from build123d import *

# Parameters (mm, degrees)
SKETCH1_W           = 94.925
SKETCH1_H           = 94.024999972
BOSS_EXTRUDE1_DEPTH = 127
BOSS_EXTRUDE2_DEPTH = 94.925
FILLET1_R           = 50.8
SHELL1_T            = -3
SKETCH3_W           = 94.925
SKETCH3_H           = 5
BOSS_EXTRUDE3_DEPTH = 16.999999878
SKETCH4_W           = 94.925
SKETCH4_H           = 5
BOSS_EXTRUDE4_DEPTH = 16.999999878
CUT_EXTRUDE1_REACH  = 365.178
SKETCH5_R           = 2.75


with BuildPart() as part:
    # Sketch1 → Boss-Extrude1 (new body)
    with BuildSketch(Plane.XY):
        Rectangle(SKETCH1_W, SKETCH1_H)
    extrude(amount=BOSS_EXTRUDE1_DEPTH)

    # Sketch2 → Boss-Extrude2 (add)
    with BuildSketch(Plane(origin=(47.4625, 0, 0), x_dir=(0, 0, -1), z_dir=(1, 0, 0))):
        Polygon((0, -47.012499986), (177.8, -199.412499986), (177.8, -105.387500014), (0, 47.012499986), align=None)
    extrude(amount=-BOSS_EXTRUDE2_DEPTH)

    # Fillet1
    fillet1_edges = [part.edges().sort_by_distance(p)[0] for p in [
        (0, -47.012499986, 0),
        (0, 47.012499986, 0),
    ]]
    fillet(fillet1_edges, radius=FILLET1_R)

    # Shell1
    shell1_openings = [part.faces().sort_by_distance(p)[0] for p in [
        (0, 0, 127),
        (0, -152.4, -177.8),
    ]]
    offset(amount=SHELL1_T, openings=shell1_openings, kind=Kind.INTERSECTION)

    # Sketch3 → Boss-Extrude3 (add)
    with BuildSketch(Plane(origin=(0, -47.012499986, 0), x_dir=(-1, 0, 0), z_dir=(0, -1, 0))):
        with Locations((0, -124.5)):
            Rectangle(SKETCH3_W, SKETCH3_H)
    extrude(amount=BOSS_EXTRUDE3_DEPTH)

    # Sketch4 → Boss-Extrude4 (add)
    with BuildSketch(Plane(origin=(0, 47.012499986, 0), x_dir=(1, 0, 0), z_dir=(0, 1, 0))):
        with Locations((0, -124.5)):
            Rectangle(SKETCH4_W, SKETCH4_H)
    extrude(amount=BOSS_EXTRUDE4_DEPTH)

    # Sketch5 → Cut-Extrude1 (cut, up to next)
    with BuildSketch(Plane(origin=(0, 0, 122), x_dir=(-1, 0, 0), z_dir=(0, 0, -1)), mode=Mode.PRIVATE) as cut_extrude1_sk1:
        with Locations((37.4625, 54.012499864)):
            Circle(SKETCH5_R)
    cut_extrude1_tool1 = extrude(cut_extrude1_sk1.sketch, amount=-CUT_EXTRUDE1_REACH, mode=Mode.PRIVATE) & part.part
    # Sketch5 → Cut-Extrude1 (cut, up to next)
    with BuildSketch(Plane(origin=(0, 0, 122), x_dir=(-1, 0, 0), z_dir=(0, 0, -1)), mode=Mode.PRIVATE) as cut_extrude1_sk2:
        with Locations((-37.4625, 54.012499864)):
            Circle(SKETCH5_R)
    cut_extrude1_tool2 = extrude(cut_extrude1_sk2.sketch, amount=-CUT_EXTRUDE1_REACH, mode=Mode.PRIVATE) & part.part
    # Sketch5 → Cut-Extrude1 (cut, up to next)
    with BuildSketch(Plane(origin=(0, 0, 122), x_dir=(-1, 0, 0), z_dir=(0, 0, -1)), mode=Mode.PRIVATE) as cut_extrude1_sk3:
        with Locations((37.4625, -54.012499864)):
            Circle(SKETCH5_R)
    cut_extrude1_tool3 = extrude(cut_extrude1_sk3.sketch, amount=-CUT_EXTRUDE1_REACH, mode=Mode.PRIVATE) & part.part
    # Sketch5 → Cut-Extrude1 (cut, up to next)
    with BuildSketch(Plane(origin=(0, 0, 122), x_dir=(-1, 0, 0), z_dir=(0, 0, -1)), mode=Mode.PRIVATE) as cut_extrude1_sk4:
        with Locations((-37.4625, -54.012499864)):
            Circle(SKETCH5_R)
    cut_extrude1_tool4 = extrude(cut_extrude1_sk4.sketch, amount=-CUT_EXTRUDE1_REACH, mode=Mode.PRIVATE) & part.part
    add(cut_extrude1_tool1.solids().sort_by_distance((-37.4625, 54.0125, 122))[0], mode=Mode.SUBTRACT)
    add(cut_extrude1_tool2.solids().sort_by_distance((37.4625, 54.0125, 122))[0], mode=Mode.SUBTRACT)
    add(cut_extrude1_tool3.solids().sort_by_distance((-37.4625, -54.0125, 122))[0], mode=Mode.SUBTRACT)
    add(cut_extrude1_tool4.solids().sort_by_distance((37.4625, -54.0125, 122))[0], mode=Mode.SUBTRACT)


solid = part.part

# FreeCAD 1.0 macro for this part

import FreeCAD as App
import Part
import Sketcher

V = App.Vector


def edges_at(feature, points):
    """Names of the edges that pass closest to the given points."""
    edges = feature.Shape.Edges
    near = lambda p: min(range(len(edges)), key=lambda i: edges[i].distToShape(Part.Vertex(*p))[0])
    return sorted({f"Edge{near(p) + 1}" for p in points})


def faces_at(feature, points):
    """Names of the faces that lie closest to the given points."""
    faces = feature.Shape.Faces
    near = lambda p: min(range(len(faces)), key=lambda i: faces[i].distToShape(Part.Vertex(*p))[0])
    return sorted({f"Face{near(p) + 1}" for p in points})


def add_polygon(sketch, points):
    """Adds a closed chain of lines whose ends are joined by coincident constraints."""
    first, n = sketch.GeometryCount, len(points)
    for a, b in zip(points, points[1:] + points[:1]):
        sketch.addGeometry(Part.LineSegment(App.Vector(*a, 0), App.Vector(*b, 0)), False)
    for i in range(n):
        sketch.addConstraint(Sketcher.Constraint("Coincident", first + i, 2, first + (i + 1) % n, 1))

doc = App.newDocument("Part")
body = doc.addObject("PartDesign::Body", "Body")

sketch1 = body.newObject("Sketcher::SketchObject", "Sketch")
sketch1.AttachmentSupport = (doc.getObject("XY_Plane"), [""])
sketch1.MapMode = "FlatFace"
add_polygon(sketch1, [(-47.4625, 47.0125), (-47.4625, -47.0125), (47.4625, -47.0125), (47.4625, 47.0125)])
sketch1.addConstraint([
    Sketcher.Constraint("Vertical", 0),
    Sketcher.Constraint("Horizontal", 1),
    Sketcher.Constraint("Vertical", 2),
    Sketcher.Constraint("Horizontal", 3),
    Sketcher.Constraint("Symmetric", 0, 2, 2, 2, -1, 1),
    Sketcher.Constraint("DistanceX", 1, 1, 1, 2, 94.925),
    Sketcher.Constraint("DistanceY", 0, 2, 0, 1, 94.025),
])
pad1 = body.newObject("PartDesign::Pad", "Pad")
pad1.Profile = sketch1
pad1.Length = 127

sketch2 = body.newObject("Sketcher::SketchObject", "Sketch001")
sketch2.AttachmentSupport = (doc.getObject("YZ_Plane"), [""])
sketch2.MapMode = "FlatFace"
sketch2.AttachmentOffset = App.Placement(V(0, 0, 47.4625), App.Rotation())
add_polygon(sketch2, [(-47.0125, 0), (-199.4125, -177.8), (-105.3875, -177.8), (47.0125, 0)])
sketch2.addConstraint([
    Sketcher.Constraint("Horizontal", 1),
    Sketcher.Constraint("Horizontal", 3),
    Sketcher.Constraint("Symmetric", 2, 2, 3, 2, -1, 1),
    Sketcher.Constraint("Parallel", 0, 2),
    Sketcher.Constraint("DistanceY", 0, 2, -1, 1, 177.8),
    Sketcher.Constraint("DistanceX", 1, 2, 2, 2, 152.4),
    Sketcher.Constraint("DistanceX", 1, 1, 1, 2, 94.025),
])
pad2 = body.newObject("PartDesign::Pad", "Pad001")
pad2.Profile = sketch2
pad2.Length = 94.925
pad2.Reversed = True
doc.recompute()

fillet = body.newObject("PartDesign::Fillet", "Fillet")
fillet.Base = (pad2, edges_at(pad2, [(0, -47.012, 0), (0, 47.012, 0)]))
fillet.Radius = 50.8
doc.recompute()

thickness = body.newObject("PartDesign::Thickness", "Thickness")
thickness.Base = (fillet, faces_at(fillet, [(0, 0, 127), (0, -152.4, -177.8)]))
thickness.Value = 3
thickness.Reversed = True
thickness.Join = "Intersection"

sketch3 = body.newObject("Sketcher::SketchObject", "Sketch002")
sketch3.AttachmentSupport = (doc.getObject("XZ_Plane"), [""])
sketch3.MapMode = "FlatFace"
sketch3.AttachmentOffset = App.Placement(V(0, 0, 47.0125), App.Rotation())
add_polygon(sketch3, [(47.4625, 122), (47.4625, 127), (-47.4625, 127), (-47.4625, 122)])
sketch3.addConstraint([
    Sketcher.Constraint("Vertical", 0),
    Sketcher.Constraint("Horizontal", 1),
    Sketcher.Constraint("Vertical", 2),
    Sketcher.Constraint("Horizontal", 3),
    Sketcher.Constraint("DistanceY", 0, 1, 0, 2, 5.0),
    Sketcher.Constraint("DistanceY", -1, 1, 0, 2, 127.0),
    Sketcher.Constraint("DistanceX", 1, 2, 1, 1, 94.925),
    Sketcher.Constraint("DistanceX", -1, 1, 0, 2, 47.4625),
])
pad3 = body.newObject("PartDesign::Pad", "Pad002")
pad3.Profile = sketch3
pad3.Length = 17

sketch4 = body.newObject("Sketcher::SketchObject", "Sketch003")
sketch4.AttachmentSupport = (doc.getObject("XZ_Plane"), [""])
sketch4.MapMode = "FlatFace"
sketch4.AttachmentOffset = App.Placement(V(0, 0, -47.0125), App.Rotation())
add_polygon(sketch4, [(-47.4625, 122), (-47.4625, 127), (47.4625, 127), (47.4625, 122)])
sketch4.addConstraint([
    Sketcher.Constraint("Vertical", 0),
    Sketcher.Constraint("Horizontal", 1),
    Sketcher.Constraint("Vertical", 2),
    Sketcher.Constraint("Horizontal", 3),
    Sketcher.Constraint("DistanceY", 0, 1, 0, 2, 5.0),
    Sketcher.Constraint("DistanceY", -1, 1, 0, 2, 127.0),
    Sketcher.Constraint("DistanceX", 1, 1, 1, 2, 94.925),
    Sketcher.Constraint("DistanceX", 0, 2, -1, 1, 47.4625),
])
pad4 = body.newObject("PartDesign::Pad", "Pad003")
pad4.Profile = sketch4
pad4.Length = 17
pad4.Reversed = True

sketch5 = body.newObject("Sketcher::SketchObject", "Sketch004")
sketch5.AttachmentSupport = (doc.getObject("XY_Plane"), [""])
sketch5.MapMode = "FlatFace"
sketch5.AttachmentOffset = App.Placement(V(0, 0, 122), App.Rotation())
sketch5.addGeometry(Part.Circle(V(-37.4625, 54.0125, 0), V(0, 0, 1), 2.75), False)
sketch5.addConstraint([
    Sketcher.Constraint("Diameter", 0, 5.5),
    Sketcher.Constraint("DistanceX", 0, 3, -1, 1, 37.4625),
    Sketcher.Constraint("DistanceY", -1, 1, 0, 3, 54.0125),
])
pocket1 = body.newObject("PartDesign::Pocket", "Pocket")
pocket1.Profile = sketch5
pocket1.Type = "UpToFirst"
pocket1.Reversed = True

sketch6 = body.newObject("Sketcher::SketchObject", "Sketch005")
sketch6.AttachmentSupport = (doc.getObject("XY_Plane"), [""])
sketch6.MapMode = "FlatFace"
sketch6.AttachmentOffset = App.Placement(V(0, 0, 122), App.Rotation())
sketch6.addGeometry(Part.Circle(V(37.4625, 54.0125, 0), V(0, 0, 1), 2.75), False)
sketch6.addConstraint([
    Sketcher.Constraint("Diameter", 0, 5.5),
    Sketcher.Constraint("DistanceX", -1, 1, 0, 3, 37.4625),
    Sketcher.Constraint("DistanceY", -1, 1, 0, 3, 54.0125),
])
pocket2 = body.newObject("PartDesign::Pocket", "Pocket001")
pocket2.Profile = sketch6
pocket2.Type = "UpToFirst"
pocket2.Reversed = True

sketch7 = body.newObject("Sketcher::SketchObject", "Sketch006")
sketch7.AttachmentSupport = (doc.getObject("XY_Plane"), [""])
sketch7.MapMode = "FlatFace"
sketch7.AttachmentOffset = App.Placement(V(0, 0, 122), App.Rotation())
sketch7.addGeometry(Part.Circle(V(-37.4625, -54.0125, 0), V(0, 0, 1), 2.75), False)
sketch7.addConstraint([
    Sketcher.Constraint("Diameter", 0, 5.5),
    Sketcher.Constraint("DistanceX", 0, 3, -1, 1, 37.4625),
    Sketcher.Constraint("DistanceY", 0, 3, -1, 1, 54.0125),
])
pocket3 = body.newObject("PartDesign::Pocket", "Pocket002")
pocket3.Profile = sketch7
pocket3.Type = "UpToFirst"
pocket3.Reversed = True

sketch8 = body.newObject("Sketcher::SketchObject", "Sketch007")
sketch8.AttachmentSupport = (doc.getObject("XY_Plane"), [""])
sketch8.MapMode = "FlatFace"
sketch8.AttachmentOffset = App.Placement(V(0, 0, 122), App.Rotation())
sketch8.addGeometry(Part.Circle(V(37.4625, -54.0125, 0), V(0, 0, 1), 2.75), False)
sketch8.addConstraint([
    Sketcher.Constraint("Diameter", 0, 5.5),
    Sketcher.Constraint("DistanceX", -1, 1, 0, 3, 37.4625),
    Sketcher.Constraint("DistanceY", 0, 3, -1, 1, 54.0125),
])
pocket4 = body.newObject("PartDesign::Pocket", "Pocket003")
pocket4.Profile = sketch8
pocket4.Type = "UpToFirst"
pocket4.Reversed = True

doc.recompute()
